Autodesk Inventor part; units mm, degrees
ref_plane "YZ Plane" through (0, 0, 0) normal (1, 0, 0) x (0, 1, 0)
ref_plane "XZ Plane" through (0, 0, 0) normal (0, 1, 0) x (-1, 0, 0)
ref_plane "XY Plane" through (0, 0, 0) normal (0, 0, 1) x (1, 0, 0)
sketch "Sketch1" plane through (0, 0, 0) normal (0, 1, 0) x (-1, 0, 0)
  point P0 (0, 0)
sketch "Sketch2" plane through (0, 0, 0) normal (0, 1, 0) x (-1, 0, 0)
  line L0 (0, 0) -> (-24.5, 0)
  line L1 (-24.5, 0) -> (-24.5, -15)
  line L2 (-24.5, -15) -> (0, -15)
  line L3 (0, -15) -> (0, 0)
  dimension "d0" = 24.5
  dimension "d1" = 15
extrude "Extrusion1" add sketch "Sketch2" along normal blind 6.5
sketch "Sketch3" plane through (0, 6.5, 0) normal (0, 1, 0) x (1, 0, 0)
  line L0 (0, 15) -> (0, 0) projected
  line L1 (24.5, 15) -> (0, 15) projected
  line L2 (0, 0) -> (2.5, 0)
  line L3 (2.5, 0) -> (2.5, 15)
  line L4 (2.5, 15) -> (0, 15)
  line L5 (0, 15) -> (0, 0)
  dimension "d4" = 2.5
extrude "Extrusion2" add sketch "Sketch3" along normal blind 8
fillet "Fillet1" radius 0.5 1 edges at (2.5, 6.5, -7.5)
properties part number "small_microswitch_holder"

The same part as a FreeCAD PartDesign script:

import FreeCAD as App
import Part
import Sketcher
from FreeCAD import Vector


def edges_at(feature, points):
    """Names of the edges that pass closest to the given points."""
    edges = feature.Shape.Edges
    near = lambda p: min(range(len(edges)), key=lambda i: edges[i].distToShape(Part.Vertex(*p))[0])
    return sorted({f"Edge{near(p) + 1}" for p in points})

doc = App.newDocument("Part")
params = doc.addObject("Spreadsheet::Sheet", "Params")
for row, (alias, value) in enumerate([
    ("sketch1_height", "15 mm"),
    ("sketch1_width", "24.5 mm"),
    ("pad1_length", "6.5 mm"),
    ("sketch2_width", "2.5 mm"),
    ("sketch2_height", "15 mm"),
    ("pad2_length", "8 mm"),
    ("fillet_radius", "0.5 mm"),
], start=1):
    params.set(f"A{row}", alias)
    params.set(f"B{row}", "=" + value)
    params.setAlias(f"B{row}", alias)

body = doc.addObject("PartDesign::Body", "Body")

# Sketch on XZ plane
sketch1 = doc.addObject("Sketcher::SketchObject", "Sketch")
body.addObject(sketch1)
sketch1.AttachmentSupport = (doc.XZ_Plane, [""])
sketch1.MapMode = "FlatFace"
sketch1.addGeometry(Part.LineSegment(Vector(0, -15, 0), Vector(0, 0, 0)), False)
sketch1.addGeometry(Part.LineSegment(Vector(0, 0, 0), Vector(24, 0, 0)), False)
sketch1.addGeometry(Part.LineSegment(Vector(24, 0, 0), Vector(24, -15, 0)), False)
sketch1.addGeometry(Part.LineSegment(Vector(24, -15, 0), Vector(0, -15, 0)), False)
sketch1.addConstraint(Sketcher.Constraint("Coincident", 0, 2, 1, 1))
sketch1.addConstraint(Sketcher.Constraint("Coincident", 1, 2, 2, 1))
sketch1.addConstraint(Sketcher.Constraint("Coincident", 2, 2, 3, 1))
sketch1.addConstraint(Sketcher.Constraint("Coincident", 3, 2, 0, 1))
sketch1.addConstraint(Sketcher.Constraint("Vertical", 0))
sketch1.addConstraint(Sketcher.Constraint("Horizontal", 1))
sketch1.addConstraint(Sketcher.Constraint("Vertical", 2))
sketch1.addConstraint(Sketcher.Constraint("Horizontal", 3))
sketch1.addConstraint(Sketcher.Constraint("Coincident", 0, 2, -1, 1))
sketch1.addConstraint(Sketcher.Constraint("DistanceY", 0, 1, 0, 2, 15.0))
sketch1.addConstraint(Sketcher.Constraint("DistanceX", 1, 1, 1, 2, 24.5))
sketch1.setExpression("Constraints[9]", "Params.sketch1_height")
sketch1.setExpression("Constraints[10]", "Params.sketch1_width")
pad1 = doc.addObject("PartDesign::Pad", "Pad")
body.addObject(pad1)
pad1.Profile = sketch1
pad1.setExpression("Length", "Params.pad1_length")
pad1.Reversed = True

# Sketch on XZ plane
sketch2 = doc.addObject("Sketcher::SketchObject", "Sketch001")
body.addObject(sketch2)
sketch2.AttachmentSupport = (doc.XZ_Plane, [""])
sketch2.MapMode = "FlatFace"
sketch2.AttachmentOffset = App.Placement(Vector(0, 0, -6.5), App.Rotation())
sketch2.addGeometry(Part.LineSegment(Vector(2.5, -15, 0), Vector(0, -15, 0)), False)
sketch2.addGeometry(Part.LineSegment(Vector(0, -15, 0), Vector(0, 0, 0)), False)
sketch2.addGeometry(Part.LineSegment(Vector(0, 0, 0), Vector(2.5, 0, 0)), False)
sketch2.addGeometry(Part.LineSegment(Vector(2.5, 0, 0), Vector(2.5, -15, 0)), False)
sketch2.addConstraint(Sketcher.Constraint("Coincident", 0, 2, 1, 1))
sketch2.addConstraint(Sketcher.Constraint("Coincident", 1, 2, 2, 1))
sketch2.addConstraint(Sketcher.Constraint("Coincident", 2, 2, 3, 1))
sketch2.addConstraint(Sketcher.Constraint("Coincident", 3, 2, 0, 1))
sketch2.addConstraint(Sketcher.Constraint("Horizontal", 0))
sketch2.addConstraint(Sketcher.Constraint("Vertical", 1))
sketch2.addConstraint(Sketcher.Constraint("Horizontal", 2))
sketch2.addConstraint(Sketcher.Constraint("Vertical", 3))
sketch2.addConstraint(Sketcher.Constraint("Coincident", 1, 2, -1, 1))
sketch2.addConstraint(Sketcher.Constraint("DistanceX", 0, 2, 0, 1, 2.5))
sketch2.addConstraint(Sketcher.Constraint("DistanceY", 1, 1, 1, 2, 15.0))
sketch2.setExpression("Constraints[9]", "Params.sketch2_width")
sketch2.setExpression("Constraints[10]", "Params.sketch2_height")
pad2 = doc.addObject("PartDesign::Pad", "Pad001")
body.addObject(pad2)
pad2.Profile = sketch2
pad2.setExpression("Length", "Params.pad2_length")
pad2.Reversed = True
doc.recompute()

fillet = doc.addObject("PartDesign::Fillet", "Fillet")
body.addObject(fillet)
fillet.Base = (pad2, edges_at(pad2, [(2.5, 6.5, -7.5)]))
fillet.setExpression("Radius", "Params.fillet_radius")

doc.recompute()
